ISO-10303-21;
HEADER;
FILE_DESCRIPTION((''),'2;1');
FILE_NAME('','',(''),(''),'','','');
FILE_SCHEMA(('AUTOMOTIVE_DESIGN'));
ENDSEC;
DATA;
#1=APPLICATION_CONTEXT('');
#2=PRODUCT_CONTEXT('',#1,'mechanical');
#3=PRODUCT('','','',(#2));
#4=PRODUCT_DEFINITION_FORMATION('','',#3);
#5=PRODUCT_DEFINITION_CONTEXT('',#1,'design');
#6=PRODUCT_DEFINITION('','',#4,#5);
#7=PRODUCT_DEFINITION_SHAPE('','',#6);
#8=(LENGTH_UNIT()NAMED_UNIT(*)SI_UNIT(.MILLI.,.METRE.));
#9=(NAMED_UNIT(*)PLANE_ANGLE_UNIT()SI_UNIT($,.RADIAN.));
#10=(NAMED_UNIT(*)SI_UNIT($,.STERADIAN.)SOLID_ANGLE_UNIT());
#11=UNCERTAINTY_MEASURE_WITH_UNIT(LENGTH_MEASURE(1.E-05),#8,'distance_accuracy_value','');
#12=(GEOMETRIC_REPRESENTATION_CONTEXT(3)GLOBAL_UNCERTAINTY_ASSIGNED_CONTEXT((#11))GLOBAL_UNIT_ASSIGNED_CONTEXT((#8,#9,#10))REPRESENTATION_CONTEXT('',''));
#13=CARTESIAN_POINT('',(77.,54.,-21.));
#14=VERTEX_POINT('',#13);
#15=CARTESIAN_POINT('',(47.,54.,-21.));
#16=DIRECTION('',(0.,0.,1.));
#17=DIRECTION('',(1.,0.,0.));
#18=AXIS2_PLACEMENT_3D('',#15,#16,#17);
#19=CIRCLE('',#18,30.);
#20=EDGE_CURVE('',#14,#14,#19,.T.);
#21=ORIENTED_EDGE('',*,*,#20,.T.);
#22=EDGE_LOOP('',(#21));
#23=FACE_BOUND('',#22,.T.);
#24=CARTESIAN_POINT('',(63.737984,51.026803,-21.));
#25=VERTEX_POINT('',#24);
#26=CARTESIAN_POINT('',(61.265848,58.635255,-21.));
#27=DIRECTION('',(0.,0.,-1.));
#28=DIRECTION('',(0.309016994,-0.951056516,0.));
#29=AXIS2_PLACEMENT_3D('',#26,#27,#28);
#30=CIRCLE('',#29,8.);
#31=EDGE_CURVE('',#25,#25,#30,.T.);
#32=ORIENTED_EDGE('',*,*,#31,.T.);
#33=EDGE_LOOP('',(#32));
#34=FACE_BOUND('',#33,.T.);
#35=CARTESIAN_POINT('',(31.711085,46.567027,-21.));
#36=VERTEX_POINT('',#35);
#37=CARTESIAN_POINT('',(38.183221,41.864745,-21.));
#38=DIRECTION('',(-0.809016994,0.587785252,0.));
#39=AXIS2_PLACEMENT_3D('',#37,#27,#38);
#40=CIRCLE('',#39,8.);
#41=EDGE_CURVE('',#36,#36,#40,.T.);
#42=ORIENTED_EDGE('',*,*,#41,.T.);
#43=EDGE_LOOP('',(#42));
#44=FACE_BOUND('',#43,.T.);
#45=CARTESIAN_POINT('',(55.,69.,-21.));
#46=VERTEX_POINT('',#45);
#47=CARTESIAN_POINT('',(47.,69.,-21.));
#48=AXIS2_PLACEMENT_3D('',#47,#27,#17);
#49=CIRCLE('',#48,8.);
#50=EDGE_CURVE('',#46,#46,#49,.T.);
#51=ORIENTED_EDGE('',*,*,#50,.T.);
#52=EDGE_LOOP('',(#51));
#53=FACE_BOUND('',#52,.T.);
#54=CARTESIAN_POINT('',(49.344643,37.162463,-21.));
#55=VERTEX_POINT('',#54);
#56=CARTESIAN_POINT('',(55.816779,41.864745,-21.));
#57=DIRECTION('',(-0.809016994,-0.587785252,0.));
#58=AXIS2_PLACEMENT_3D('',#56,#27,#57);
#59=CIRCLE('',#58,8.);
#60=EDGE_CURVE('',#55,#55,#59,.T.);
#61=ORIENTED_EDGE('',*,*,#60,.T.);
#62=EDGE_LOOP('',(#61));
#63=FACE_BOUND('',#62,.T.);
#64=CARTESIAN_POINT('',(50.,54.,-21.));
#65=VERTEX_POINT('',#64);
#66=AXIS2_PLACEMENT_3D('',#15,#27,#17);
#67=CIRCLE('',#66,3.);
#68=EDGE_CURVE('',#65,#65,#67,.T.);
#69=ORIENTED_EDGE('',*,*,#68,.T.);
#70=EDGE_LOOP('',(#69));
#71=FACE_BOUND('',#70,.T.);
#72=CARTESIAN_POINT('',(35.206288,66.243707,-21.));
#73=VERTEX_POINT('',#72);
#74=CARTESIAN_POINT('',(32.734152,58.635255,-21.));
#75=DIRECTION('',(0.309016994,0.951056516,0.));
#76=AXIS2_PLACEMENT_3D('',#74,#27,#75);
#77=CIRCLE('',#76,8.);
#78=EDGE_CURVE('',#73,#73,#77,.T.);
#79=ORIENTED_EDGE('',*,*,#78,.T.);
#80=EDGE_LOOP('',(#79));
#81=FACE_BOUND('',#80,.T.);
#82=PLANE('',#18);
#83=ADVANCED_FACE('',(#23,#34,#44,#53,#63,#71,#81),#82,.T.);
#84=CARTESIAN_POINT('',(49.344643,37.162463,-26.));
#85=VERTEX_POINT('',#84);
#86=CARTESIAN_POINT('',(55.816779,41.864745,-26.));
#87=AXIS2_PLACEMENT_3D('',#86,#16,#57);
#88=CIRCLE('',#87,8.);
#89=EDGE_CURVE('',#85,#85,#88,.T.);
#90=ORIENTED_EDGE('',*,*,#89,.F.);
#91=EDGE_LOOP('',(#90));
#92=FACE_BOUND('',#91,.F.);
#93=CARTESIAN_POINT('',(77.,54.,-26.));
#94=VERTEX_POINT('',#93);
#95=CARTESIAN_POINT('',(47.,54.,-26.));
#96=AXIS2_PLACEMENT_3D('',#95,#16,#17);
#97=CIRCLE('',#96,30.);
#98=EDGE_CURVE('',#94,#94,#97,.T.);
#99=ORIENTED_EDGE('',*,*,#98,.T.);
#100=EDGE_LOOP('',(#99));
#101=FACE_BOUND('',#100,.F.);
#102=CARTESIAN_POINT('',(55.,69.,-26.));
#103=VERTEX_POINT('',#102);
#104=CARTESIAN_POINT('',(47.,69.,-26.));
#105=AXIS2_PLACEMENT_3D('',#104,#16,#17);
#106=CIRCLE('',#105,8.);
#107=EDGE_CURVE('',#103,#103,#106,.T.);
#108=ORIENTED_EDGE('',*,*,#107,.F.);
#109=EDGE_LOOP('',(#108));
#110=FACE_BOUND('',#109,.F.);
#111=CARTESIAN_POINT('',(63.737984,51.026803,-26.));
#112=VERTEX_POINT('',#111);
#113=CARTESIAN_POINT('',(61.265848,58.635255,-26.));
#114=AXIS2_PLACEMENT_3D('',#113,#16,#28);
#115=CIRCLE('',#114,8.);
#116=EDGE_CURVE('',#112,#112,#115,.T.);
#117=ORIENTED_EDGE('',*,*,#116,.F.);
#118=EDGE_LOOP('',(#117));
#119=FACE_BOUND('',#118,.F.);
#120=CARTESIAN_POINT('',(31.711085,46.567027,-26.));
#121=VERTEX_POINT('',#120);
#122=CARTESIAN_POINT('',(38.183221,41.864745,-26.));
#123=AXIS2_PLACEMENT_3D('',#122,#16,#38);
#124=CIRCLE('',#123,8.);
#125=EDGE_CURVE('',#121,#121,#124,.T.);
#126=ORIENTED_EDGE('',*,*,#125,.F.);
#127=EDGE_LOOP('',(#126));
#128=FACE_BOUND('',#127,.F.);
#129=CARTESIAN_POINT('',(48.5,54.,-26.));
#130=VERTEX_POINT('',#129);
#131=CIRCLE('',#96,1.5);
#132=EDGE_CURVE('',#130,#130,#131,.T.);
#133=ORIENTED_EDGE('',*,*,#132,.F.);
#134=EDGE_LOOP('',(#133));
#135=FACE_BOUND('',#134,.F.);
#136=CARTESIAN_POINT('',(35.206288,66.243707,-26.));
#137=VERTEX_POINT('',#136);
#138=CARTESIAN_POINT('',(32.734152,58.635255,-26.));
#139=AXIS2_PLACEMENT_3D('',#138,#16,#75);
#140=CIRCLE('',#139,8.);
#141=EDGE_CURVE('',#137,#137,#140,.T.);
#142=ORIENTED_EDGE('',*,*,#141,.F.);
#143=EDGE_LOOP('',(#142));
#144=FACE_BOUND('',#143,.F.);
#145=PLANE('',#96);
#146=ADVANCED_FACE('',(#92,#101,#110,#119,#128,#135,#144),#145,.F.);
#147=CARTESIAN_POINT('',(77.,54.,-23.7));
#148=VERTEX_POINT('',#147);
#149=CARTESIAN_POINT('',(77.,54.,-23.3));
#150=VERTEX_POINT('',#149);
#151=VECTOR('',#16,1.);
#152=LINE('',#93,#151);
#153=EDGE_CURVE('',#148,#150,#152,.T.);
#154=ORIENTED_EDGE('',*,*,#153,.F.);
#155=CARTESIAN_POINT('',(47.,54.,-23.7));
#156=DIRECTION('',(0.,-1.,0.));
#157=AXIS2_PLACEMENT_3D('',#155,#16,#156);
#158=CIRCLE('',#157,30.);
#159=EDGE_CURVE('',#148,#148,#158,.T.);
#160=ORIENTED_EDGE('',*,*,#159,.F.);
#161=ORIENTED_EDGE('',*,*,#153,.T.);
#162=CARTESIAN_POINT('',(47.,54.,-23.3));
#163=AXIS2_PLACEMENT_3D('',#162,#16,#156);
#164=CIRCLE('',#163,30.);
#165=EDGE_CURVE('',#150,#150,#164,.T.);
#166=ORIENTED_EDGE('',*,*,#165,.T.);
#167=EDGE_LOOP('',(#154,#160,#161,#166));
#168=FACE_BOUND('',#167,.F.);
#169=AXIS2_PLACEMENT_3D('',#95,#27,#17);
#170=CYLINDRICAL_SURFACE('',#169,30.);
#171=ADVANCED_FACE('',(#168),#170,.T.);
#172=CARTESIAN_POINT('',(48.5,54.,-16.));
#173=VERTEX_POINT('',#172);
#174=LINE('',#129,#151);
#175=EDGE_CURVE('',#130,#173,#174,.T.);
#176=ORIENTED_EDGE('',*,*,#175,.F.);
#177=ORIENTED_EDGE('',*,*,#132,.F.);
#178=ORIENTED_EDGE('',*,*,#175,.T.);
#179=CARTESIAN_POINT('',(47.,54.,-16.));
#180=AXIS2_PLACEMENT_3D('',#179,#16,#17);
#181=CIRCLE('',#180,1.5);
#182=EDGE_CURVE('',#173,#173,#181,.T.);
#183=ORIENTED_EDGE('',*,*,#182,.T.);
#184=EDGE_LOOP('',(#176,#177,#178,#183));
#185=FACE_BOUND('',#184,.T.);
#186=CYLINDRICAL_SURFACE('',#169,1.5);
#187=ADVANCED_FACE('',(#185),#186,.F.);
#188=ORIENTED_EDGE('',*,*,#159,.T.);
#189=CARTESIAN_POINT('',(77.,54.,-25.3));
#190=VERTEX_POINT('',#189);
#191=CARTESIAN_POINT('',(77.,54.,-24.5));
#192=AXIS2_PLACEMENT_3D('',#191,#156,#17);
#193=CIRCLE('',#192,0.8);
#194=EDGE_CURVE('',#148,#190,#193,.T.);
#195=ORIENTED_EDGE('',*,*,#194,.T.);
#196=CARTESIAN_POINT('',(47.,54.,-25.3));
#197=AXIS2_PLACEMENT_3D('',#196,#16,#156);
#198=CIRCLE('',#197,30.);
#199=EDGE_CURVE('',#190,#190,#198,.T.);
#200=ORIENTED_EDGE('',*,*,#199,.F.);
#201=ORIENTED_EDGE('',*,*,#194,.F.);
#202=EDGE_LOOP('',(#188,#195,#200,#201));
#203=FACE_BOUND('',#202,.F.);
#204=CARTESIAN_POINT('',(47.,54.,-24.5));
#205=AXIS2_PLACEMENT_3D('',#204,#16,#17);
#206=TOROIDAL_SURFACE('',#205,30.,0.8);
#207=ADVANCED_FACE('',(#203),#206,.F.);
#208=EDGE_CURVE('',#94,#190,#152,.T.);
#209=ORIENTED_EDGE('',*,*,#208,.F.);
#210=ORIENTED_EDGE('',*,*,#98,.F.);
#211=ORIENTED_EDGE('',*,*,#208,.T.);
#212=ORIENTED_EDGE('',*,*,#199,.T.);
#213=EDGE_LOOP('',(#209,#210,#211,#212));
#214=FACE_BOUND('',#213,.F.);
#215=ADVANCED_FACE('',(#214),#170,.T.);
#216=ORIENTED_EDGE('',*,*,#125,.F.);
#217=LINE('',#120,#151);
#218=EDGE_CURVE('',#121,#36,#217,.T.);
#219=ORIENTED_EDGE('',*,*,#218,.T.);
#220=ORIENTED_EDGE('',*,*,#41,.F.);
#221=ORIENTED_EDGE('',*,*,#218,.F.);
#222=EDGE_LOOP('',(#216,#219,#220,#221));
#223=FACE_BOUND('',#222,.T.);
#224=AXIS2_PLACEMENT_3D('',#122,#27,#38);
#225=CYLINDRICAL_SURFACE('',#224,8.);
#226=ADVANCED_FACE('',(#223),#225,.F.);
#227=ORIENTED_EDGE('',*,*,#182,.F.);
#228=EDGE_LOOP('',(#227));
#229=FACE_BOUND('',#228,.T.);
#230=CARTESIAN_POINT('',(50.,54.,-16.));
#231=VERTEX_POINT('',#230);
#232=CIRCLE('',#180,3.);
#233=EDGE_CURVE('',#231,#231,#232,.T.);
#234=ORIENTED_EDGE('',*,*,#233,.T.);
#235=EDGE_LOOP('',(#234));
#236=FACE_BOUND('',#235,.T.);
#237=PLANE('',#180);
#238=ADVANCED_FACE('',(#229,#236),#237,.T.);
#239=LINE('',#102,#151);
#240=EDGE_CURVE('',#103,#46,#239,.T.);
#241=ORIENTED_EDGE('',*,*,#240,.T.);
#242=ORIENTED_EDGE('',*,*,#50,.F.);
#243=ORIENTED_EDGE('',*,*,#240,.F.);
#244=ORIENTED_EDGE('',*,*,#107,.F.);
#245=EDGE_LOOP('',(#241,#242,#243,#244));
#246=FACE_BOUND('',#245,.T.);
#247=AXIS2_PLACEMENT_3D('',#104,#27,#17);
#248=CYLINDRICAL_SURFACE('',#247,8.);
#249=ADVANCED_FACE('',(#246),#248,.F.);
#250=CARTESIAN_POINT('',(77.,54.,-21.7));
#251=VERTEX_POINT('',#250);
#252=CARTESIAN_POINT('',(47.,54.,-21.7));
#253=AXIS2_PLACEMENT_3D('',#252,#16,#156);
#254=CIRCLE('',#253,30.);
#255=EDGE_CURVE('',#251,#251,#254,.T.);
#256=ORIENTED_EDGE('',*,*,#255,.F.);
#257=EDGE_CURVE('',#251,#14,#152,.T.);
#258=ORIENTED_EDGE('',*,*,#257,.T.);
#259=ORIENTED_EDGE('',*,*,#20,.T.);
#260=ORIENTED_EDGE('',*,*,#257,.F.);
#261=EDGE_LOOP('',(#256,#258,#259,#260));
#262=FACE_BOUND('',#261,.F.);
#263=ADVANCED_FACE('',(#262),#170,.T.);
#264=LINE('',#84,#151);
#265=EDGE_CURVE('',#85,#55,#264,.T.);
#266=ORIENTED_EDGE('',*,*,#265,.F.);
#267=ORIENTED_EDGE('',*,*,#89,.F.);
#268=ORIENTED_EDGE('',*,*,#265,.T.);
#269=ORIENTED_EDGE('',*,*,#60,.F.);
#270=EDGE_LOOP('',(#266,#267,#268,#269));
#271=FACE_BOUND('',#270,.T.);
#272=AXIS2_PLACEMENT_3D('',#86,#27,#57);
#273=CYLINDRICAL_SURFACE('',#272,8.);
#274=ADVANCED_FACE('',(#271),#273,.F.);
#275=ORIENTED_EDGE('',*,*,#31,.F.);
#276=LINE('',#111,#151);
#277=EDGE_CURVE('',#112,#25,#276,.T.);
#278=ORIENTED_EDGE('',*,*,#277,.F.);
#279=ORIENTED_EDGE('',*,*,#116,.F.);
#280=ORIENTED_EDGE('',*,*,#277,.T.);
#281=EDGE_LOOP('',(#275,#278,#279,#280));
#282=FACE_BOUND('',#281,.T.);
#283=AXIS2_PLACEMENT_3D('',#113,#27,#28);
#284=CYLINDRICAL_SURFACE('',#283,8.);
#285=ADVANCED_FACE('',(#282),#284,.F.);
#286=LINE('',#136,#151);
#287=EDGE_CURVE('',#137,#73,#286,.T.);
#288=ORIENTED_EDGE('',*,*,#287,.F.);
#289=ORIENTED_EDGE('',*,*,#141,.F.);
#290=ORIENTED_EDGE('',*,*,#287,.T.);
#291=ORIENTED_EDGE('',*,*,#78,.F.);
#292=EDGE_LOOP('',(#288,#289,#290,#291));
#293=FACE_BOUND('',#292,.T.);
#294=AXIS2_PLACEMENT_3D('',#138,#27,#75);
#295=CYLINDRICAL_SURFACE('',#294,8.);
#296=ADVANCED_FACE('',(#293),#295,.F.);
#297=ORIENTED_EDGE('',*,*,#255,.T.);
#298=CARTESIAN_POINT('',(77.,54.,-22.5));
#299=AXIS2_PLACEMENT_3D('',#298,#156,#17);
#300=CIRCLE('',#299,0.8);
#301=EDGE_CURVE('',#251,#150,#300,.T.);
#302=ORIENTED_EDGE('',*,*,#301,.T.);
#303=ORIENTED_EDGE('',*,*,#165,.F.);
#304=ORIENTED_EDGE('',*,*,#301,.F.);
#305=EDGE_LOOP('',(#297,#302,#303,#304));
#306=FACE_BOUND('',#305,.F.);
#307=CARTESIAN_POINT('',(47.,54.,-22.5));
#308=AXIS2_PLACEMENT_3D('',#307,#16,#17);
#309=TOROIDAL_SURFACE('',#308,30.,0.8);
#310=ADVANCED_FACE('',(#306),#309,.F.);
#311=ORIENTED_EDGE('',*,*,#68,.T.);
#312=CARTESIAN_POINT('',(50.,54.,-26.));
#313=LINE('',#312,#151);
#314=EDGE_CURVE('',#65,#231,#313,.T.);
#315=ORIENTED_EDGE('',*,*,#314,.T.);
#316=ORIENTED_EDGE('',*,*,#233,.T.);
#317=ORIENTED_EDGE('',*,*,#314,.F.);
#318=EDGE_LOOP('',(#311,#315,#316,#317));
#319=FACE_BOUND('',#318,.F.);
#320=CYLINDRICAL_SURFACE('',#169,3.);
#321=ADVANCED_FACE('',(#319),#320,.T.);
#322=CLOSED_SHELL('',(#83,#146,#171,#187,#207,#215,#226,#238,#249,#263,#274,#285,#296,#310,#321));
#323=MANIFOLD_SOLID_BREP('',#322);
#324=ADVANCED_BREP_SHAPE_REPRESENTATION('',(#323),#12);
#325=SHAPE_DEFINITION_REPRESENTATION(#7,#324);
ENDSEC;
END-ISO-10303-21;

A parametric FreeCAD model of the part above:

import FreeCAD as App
import Part
import Sketcher

V = App.Vector
Q = App.Units.Quantity

doc = App.newDocument("Part")
params = doc.addObject("Spreadsheet::Sheet", "Params")
for row, (alias, value) in enumerate([
    ("sketch1_diameter", "16 mm"),
    ("pad1_length", "10 mm"),
    ("sketch2_diameter", "3 mm"),
    ("pad2_length", "10 mm"),
    ("sketch3_diameter", "1.6 mm"),
    ("revolution_angle", "360 deg"),
    ("sketch4_diameter", "1.6 mm"),
    ("revolution2_angle", "360 deg"),
    ("sketch5_diameter", "60 mm"),
    ("pad3_length", "5 mm"),
    ("sketch6_diameter", "6 mm"),
    ("pad4_length", "10 mm"),
], start=1):
    params.set(f"A{row}", alias)
    params.set(f"B{row}", "=" + value)
    params.setAlias(f"B{row}", alias)

body = doc.addObject("PartDesign::Body", "Body")

# Sketch on XY plane
sketch1 = body.newObject("Sketcher::SketchObject", "Sketch")
sketch1.AttachmentSupport = (doc.getObject("XY_Plane"), [""])
sketch1.MapMode = "FlatFace"
sketch1.addGeometry(Part.Circle(V(0, 15, 0), V(0, 0, 1), 8), False)
sketch1.addConstraint([
    Sketcher.Constraint("PointOnObject", 0, 3, -2),
    Sketcher.Constraint("Diameter", 0, Q("16 mm")),
    Sketcher.Constraint("DistanceY", -1, 1, 0, 3, Q("15 mm")),
])
sketch1.setExpression("Constraints[1]", "Params.sketch1_diameter")
pad1 = body.newObject("PartDesign::Pad", "Pad")
pad1.Profile = sketch1
pad1.setExpression("Length", "Params.pad1_length")
body2 = doc.addObject("PartDesign::Body", "Body001")
body2.AllowCompound = True
doc.recompute()

body2.BaseFeature = body
doc.recompute()

body3 = doc.addObject("PartDesign::Body", "Body002")
body3.BaseFeature = body
body3.Placement = App.Placement(V(0, 0, 0), App.Rotation(V(0, 0, 1), 72))
boolean = body2.newObject("PartDesign::Boolean", "Boolean")
boolean.Type = "Fuse"
boolean.addObjects([body3])
doc.recompute()

body4 = doc.addObject("PartDesign::Body", "Body003")
body4.BaseFeature = body
body4.Placement = App.Placement(V(0, 0, 0), App.Rotation(V(0, 0, 1), 144))
boolean2 = body2.newObject("PartDesign::Boolean", "Boolean001")
boolean2.Type = "Fuse"
boolean2.addObjects([body4])
doc.recompute()

body5 = doc.addObject("PartDesign::Body", "Body004")
body5.BaseFeature = body
body5.Placement = App.Placement(V(0, 0, 0), App.Rotation(V(0, 0, 1), 216))
boolean3 = body2.newObject("PartDesign::Boolean", "Boolean002")
boolean3.Type = "Fuse"
boolean3.addObjects([body5])
doc.recompute()

body.Placement = App.Placement(V(0, 0, 0), App.Rotation(V(0, 0, 1), 288))
boolean4 = body2.newObject("PartDesign::Boolean", "Boolean003")
boolean4.Type = "Fuse"
boolean4.addObjects([body])
body6 = doc.addObject("PartDesign::Body", "Body005")

# Sketch on XY plane
sketch2 = body6.newObject("Sketcher::SketchObject", "Sketch001")
sketch2.AttachmentSupport = (doc.getObject("XY_Plane005"), [""])
sketch2.MapMode = "FlatFace"
sketch2.addGeometry(Part.Circle(V(0, 0, 0), V(0, 0, 1), 1.5), False)
sketch2.addConstraint([
    Sketcher.Constraint("Coincident", 0, 3, -1, 1),
    Sketcher.Constraint("Diameter", 0, Q("3 mm")),
])
sketch2.setExpression("Constraints[1]", "Params.sketch2_diameter")
pad2 = body6.newObject("PartDesign::Pad", "Pad001")
pad2.Profile = sketch2
pad2.setExpression("Length", "Params.pad2_length")
body7 = doc.addObject("PartDesign::Body", "Body006")

# Sketch on XZ plane
sketch3 = body7.newObject("Sketcher::SketchObject", "Sketch002")
sketch3.AttachmentSupport = (doc.getObject("XZ_Plane006"), [""])
sketch3.MapMode = "FlatFace"
sketch3.addGeometry(Part.Circle(V(30, 3.5, 0), V(0, 0, 1), 0.8), False)
sketch3.addConstraint([
    Sketcher.Constraint("Diameter", 0, Q("1.6 mm")),
    Sketcher.Constraint("DistanceX", -1, 1, 0, 3, Q("30 mm")),
    Sketcher.Constraint("DistanceY", -1, 1, 0, 3, Q("3.5 mm")),
])
sketch3.setExpression("Constraints[0]", "Params.sketch3_diameter")
revolution = body7.newObject("PartDesign::Revolution", "Revolution")
revolution.Profile = sketch3
revolution.ReferenceAxis = (sketch3, ["V_Axis"])
revolution.setExpression("Angle", "Params.revolution_angle")
body8 = doc.addObject("PartDesign::Body", "Body007")

# Sketch on XZ plane
sketch4 = body8.newObject("Sketcher::SketchObject", "Sketch003")
sketch4.AttachmentSupport = (doc.getObject("XZ_Plane007"), [""])
sketch4.MapMode = "FlatFace"
sketch4.addGeometry(Part.Circle(V(30, 1.5, 0), V(0, 0, 1), 0.8), False)
sketch4.addConstraint([
    Sketcher.Constraint("Diameter", 0, Q("1.6 mm")),
    Sketcher.Constraint("DistanceX", -1, 1, 0, 3, Q("30 mm")),
    Sketcher.Constraint("DistanceY", -1, 1, 0, 3, Q("1.5 mm")),
])
sketch4.setExpression("Constraints[0]", "Params.sketch4_diameter")
revolution2 = body8.newObject("PartDesign::Revolution", "Revolution001")
revolution2.Profile = sketch4
revolution2.ReferenceAxis = (sketch4, ["V_Axis"])
revolution2.setExpression("Angle", "Params.revolution2_angle")
body9 = doc.addObject("PartDesign::Body", "Body008")

# Sketch on XY plane
sketch5 = body9.newObject("Sketcher::SketchObject", "Sketch004")
sketch5.AttachmentSupport = (doc.getObject("XY_Plane008"), [""])
sketch5.MapMode = "FlatFace"
sketch5.addGeometry(Part.Circle(V(0, 0, 0), V(0, 0, 1), 30), False)
sketch5.addConstraint([
    Sketcher.Constraint("Coincident", 0, 3, -1, 1),
    Sketcher.Constraint("Diameter", 0, Q("60 mm")),
])
sketch5.setExpression("Constraints[1]", "Params.sketch5_diameter")
pad3 = body9.newObject("PartDesign::Pad", "Pad002")
pad3.Profile = sketch5
pad3.setExpression("Length", "Params.pad3_length")
doc.recompute()

boolean5 = body9.newObject("PartDesign::Boolean", "Boolean004")
boolean5.Type = "Cut"
boolean5.addObjects([body8])
doc.recompute()

boolean6 = body9.newObject("PartDesign::Boolean", "Boolean005")
boolean6.Type = "Cut"
boolean6.addObjects([body7])
body10 = doc.addObject("PartDesign::Body", "Body009")

# Sketch on XY plane
sketch6 = body10.newObject("Sketcher::SketchObject", "Sketch005")
sketch6.AttachmentSupport = (doc.getObject("XY_Plane009"), [""])
sketch6.MapMode = "FlatFace"
sketch6.addGeometry(Part.Circle(V(0, 0, 0), V(0, 0, 1), 3), False)
sketch6.addConstraint([
    Sketcher.Constraint("Coincident", 0, 3, -1, 1),
    Sketcher.Constraint("Diameter", 0, Q("6 mm")),
])
sketch6.setExpression("Constraints[1]", "Params.sketch6_diameter")
pad4 = body10.newObject("PartDesign::Pad", "Pad003")
pad4.Profile = sketch6
pad4.setExpression("Length", "Params.pad4_length")
doc.recompute()

boolean7 = body10.newObject("PartDesign::Boolean", "Boolean006")
boolean7.Type = "Fuse"
boolean7.addObjects([body9])
doc.recompute()

boolean8 = body10.newObject("PartDesign::Boolean", "Boolean007")
boolean8.Type = "Cut"
boolean8.addObjects([body6])
doc.recompute()

boolean9 = body10.newObject("PartDesign::Boolean", "Boolean008")
boolean9.Type = "Cut"
boolean9.addObjects([body2])
body11 = doc.addObject("PartDesign::Body", "Body010")
doc.recompute()

body10.Placement = App.Placement(V(47, 54, -26), App.Rotation(V(0, 0, 1), 0))
boolean10 = body11.newObject("PartDesign::Boolean", "Boolean009")
boolean10.Type = "Fuse"
boolean10.addObjects([body10])

doc.recompute()
